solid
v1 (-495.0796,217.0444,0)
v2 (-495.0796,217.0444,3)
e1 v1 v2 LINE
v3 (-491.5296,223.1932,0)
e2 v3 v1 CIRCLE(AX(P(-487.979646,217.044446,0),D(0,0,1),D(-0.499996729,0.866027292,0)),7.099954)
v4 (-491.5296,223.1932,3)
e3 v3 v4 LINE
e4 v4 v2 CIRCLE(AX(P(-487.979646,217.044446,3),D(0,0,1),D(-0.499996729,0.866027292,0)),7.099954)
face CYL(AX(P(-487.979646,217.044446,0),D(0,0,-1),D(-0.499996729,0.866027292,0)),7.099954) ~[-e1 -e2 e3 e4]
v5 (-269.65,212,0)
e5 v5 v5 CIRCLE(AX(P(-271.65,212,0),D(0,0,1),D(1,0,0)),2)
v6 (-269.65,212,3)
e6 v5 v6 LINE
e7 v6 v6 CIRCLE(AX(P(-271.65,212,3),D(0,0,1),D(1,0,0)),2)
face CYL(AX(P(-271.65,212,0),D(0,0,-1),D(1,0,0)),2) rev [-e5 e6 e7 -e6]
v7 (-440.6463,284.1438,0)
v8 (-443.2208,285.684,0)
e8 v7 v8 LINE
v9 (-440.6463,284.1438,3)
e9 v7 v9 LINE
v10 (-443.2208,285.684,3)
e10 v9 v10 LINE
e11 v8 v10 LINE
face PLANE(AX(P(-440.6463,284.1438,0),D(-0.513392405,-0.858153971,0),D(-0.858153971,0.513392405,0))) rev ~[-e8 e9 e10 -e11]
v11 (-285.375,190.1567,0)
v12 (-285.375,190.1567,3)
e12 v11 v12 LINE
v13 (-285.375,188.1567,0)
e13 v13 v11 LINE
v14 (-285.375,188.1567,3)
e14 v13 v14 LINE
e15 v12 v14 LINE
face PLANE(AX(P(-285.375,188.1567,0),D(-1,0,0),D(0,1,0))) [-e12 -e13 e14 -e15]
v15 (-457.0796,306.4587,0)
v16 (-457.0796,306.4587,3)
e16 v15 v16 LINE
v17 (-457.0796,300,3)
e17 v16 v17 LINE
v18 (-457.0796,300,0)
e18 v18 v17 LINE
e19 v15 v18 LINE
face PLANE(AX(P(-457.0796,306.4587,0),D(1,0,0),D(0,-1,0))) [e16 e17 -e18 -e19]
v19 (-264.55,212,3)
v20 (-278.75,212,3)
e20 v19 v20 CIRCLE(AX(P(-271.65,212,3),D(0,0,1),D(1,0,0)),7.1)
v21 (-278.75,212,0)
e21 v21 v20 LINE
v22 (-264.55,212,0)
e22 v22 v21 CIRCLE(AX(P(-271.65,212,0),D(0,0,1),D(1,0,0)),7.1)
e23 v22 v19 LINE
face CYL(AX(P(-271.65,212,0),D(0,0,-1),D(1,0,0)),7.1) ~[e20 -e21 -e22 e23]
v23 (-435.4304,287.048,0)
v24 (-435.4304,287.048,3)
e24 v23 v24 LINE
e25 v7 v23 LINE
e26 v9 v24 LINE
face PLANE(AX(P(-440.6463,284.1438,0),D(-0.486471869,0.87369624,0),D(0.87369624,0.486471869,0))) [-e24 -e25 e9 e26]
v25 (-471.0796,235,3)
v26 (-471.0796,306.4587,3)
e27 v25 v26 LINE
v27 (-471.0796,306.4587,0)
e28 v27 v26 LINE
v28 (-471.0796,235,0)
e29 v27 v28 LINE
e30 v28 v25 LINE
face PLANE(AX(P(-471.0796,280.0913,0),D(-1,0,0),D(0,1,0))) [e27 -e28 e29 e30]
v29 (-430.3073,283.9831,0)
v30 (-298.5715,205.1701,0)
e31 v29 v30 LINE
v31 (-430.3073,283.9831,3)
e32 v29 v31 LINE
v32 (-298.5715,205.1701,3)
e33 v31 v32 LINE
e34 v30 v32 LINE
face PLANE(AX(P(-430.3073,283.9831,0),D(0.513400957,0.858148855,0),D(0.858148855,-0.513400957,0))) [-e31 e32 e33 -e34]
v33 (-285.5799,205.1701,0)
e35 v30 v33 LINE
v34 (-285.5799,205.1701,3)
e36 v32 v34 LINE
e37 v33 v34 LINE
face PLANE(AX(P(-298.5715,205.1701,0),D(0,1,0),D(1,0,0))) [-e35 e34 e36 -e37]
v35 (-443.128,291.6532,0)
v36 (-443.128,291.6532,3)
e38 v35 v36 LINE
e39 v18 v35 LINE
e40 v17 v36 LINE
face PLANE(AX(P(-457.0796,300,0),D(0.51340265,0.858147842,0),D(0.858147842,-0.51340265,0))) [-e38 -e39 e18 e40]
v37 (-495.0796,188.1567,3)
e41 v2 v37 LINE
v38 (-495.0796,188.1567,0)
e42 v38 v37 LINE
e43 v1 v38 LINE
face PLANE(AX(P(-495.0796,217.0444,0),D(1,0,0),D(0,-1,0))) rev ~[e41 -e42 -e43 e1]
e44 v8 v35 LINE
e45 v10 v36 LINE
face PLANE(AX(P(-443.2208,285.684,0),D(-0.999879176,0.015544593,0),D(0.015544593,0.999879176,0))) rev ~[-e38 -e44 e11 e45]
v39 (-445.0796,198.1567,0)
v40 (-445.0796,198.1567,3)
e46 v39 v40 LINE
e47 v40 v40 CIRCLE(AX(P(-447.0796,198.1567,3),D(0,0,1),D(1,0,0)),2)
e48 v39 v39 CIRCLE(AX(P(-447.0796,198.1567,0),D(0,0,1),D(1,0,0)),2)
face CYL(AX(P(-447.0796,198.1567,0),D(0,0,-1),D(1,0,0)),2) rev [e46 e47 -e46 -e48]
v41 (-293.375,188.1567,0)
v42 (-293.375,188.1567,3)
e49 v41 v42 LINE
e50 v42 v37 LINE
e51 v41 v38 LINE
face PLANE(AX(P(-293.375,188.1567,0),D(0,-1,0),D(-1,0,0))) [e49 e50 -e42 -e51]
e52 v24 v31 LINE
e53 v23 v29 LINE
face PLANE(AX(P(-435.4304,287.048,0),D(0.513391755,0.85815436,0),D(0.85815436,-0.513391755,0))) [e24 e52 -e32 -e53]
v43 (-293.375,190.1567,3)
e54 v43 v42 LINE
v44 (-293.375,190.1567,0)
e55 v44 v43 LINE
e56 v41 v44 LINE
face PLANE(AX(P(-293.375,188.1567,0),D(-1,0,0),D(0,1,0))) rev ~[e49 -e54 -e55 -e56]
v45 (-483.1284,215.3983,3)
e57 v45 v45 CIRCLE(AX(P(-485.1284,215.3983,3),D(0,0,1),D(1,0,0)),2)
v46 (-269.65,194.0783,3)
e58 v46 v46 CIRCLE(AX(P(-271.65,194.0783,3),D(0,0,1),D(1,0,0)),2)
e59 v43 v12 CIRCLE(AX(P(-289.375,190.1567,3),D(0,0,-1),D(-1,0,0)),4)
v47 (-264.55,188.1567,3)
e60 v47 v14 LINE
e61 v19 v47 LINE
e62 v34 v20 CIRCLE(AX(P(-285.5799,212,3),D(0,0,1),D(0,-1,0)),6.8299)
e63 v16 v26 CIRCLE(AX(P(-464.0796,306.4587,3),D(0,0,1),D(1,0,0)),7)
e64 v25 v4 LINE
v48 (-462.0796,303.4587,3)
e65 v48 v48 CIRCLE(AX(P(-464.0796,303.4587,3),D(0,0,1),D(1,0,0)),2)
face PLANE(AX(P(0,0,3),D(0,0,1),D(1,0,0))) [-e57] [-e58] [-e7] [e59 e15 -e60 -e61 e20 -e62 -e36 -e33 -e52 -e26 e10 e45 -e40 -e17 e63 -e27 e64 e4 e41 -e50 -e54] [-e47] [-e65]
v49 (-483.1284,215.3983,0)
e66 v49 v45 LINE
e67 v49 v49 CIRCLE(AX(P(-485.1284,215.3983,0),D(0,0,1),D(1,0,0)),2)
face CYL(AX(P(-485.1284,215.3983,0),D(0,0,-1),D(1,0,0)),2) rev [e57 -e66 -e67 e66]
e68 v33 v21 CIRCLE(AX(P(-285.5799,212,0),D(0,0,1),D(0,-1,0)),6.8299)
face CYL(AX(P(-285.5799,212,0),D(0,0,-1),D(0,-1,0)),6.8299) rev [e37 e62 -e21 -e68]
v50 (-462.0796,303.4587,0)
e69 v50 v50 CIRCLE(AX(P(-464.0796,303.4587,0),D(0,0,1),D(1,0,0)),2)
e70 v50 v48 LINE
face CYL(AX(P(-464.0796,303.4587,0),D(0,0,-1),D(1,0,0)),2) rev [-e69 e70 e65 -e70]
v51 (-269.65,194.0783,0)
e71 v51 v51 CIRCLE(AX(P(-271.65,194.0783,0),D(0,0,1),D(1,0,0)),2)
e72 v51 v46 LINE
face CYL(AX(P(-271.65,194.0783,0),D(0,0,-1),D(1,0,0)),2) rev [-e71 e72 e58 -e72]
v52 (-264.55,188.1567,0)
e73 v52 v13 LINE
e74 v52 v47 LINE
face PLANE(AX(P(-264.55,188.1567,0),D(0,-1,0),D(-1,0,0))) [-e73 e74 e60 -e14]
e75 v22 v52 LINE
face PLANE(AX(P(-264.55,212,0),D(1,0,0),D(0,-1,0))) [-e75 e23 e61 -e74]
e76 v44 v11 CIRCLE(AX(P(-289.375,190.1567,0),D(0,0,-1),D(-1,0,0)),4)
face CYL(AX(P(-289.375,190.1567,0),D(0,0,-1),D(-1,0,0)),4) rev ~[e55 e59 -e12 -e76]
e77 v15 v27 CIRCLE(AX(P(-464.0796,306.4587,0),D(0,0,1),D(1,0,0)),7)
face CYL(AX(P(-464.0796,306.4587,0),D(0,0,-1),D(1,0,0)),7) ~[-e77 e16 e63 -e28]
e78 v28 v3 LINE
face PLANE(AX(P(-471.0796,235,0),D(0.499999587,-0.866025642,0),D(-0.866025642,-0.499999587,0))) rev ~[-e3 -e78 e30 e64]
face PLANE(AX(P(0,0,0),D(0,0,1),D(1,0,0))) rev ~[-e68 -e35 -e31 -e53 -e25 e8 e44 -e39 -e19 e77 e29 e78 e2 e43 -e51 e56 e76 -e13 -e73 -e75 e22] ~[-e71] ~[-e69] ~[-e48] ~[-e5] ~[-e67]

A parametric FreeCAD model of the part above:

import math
import FreeCAD as App
import Part
import Sketcher
from FreeCAD import Vector
Q = App.Units.Quantity

doc = App.newDocument("Part")
params = doc.addObject("Spreadsheet::Sheet", "Params")
for row, (alias, value) in enumerate([
    ("sketch1_diameter", "4 mm"),
    ("sketch1_radius", "7 mm"),
    ("sketch1_radius2", "7.1 mm"),
    ("sketch1_length", "3 mm"),
    ("sketch1_radius3", "6.83 mm"),
    ("pad1_length", "3 mm"),
    ("sketch2_radius", "4 mm"),
    ("sketch2_height", "2 mm"),
], start=1):
    params.set(f"A{row}", alias)
    params.set(f"B{row}", "=" + value)
    params.setAlias(f"B{row}", alias)

body = doc.addObject("PartDesign::Body", "Body")

# Sketch on XY plane
sketch1 = body.newObject("Sketcher::SketchObject", "Sketch")
sketch1.AttachmentSupport = (doc.getObject("XY_Plane"), [""])
sketch1.MapMode = "FlatFace"
sketch1.addGeometry([
    Part.LineSegment(Vector(-471.1, 306.5, 0), Vector(-471.1, 235, 0)),  # 0
    Part.LineSegment(Vector(-471.1, 235, 0), Vector(-491.5, 223.2, 0)),  # 1
    Part.ArcOfCircle(Part.Circle(Vector(-488, 217, 0), Vector(0, 0, 1), 7.1), math.radians(120), math.radians(180)),  # 2
    Part.LineSegment(Vector(-495.1, 217, 0), Vector(-495.1, 188.2, 0)),  # 3
    Part.LineSegment(Vector(-495.1, 188.2, 0), Vector(-264.6, 188.2, 0)),  # 4
    Part.LineSegment(Vector(-264.6, 188.2, 0), Vector(-264.6, 212, 0)),  # 5
    Part.ArcOfCircle(Part.Circle(Vector(-271.6, 212, 0), Vector(0, 0, 1), 7.1), math.radians(0), math.radians(180)),  # 6
    Part.ArcOfCircle(Part.Circle(Vector(-285.6, 212, 0), Vector(0, 0, 1), 6.8), math.radians(-90), math.radians(0)),  # 7
    Part.LineSegment(Vector(-285.6, 205.2, 0), Vector(-298.6, 205.2, 0)),  # 8
    Part.LineSegment(Vector(-298.6, 205.2, 0), Vector(-430.3, 284, 0)),  # 9
    Part.LineSegment(Vector(-430.3, 284, 0), Vector(-435.4, 287, 0)),  # 10
    Part.LineSegment(Vector(-435.4, 287, 0), Vector(-440.6, 284.1, 0)),  # 11
    Part.LineSegment(Vector(-440.6, 284.1, 0), Vector(-443.2, 285.7, 0)),  # 12
    Part.LineSegment(Vector(-443.2, 285.7, 0), Vector(-443.1, 291.7, 0)),  # 13
    Part.LineSegment(Vector(-443.1, 291.7, 0), Vector(-457.1, 300, 0)),  # 14
    Part.LineSegment(Vector(-457.1, 300, 0), Vector(-457.1, 306.5, 0)),  # 15
    Part.ArcOfCircle(Part.Circle(Vector(-464.1, 306.5, 0), Vector(0, 0, 1), 7), math.radians(0), math.radians(180)),  # 16
    Part.Circle(Vector(-447.1, 198.2, 0), Vector(0, 0, 1), 2),  # 17
    Part.Circle(Vector(-485.1, 215.4, 0), Vector(0, 0, 1), 2),  # 18
    Part.Circle(Vector(-271.6, 194.1, 0), Vector(0, 0, 1), 2),  # 19
    Part.Circle(Vector(-271.6, 212, 0), Vector(0, 0, 1), 2),  # 20
    Part.Circle(Vector(-464.1, 303.5, 0), Vector(0, 0, 1), 2),  # 21
], False)
sketch1.addConstraint([
    Sketcher.Constraint("Coincident", 0, 2, 1, 1),
    Sketcher.Constraint("Tangent", 1, 2, 2, 1),
    Sketcher.Constraint("Tangent", 2, 2, 3, 1),
    Sketcher.Constraint("Coincident", 3, 2, 4, 1),
    Sketcher.Constraint("Coincident", 4, 2, 5, 1),
    Sketcher.Constraint("Tangent", 5, 2, 6, 1),
    Sketcher.Constraint("Tangent", 6, 2, 7, 2),
    Sketcher.Constraint("Tangent", 7, 1, 8, 1),
    Sketcher.Constraint("Coincident", 8, 2, 9, 1),
    Sketcher.Constraint("Coincident", 9, 2, 10, 1),
    Sketcher.Constraint("Coincident", 10, 2, 11, 1),
    Sketcher.Constraint("Coincident", 11, 2, 12, 1),
    Sketcher.Constraint("Coincident", 12, 2, 13, 1),
    Sketcher.Constraint("Coincident", 13, 2, 14, 1),
    Sketcher.Constraint("Coincident", 14, 2, 15, 1),
    Sketcher.Constraint("Tangent", 15, 2, 16, 1),
    Sketcher.Constraint("Tangent", 16, 2, 0, 1),
    Sketcher.Constraint("Vertical", 0),
    Sketcher.Constraint("Vertical", 3),
    Sketcher.Constraint("Horizontal", 4),
    Sketcher.Constraint("Vertical", 5),
    Sketcher.Constraint("Horizontal", 8),
    Sketcher.Constraint("Vertical", 15),
    Sketcher.Constraint("Coincident", 20, 3, 6, 3),
    Sketcher.Constraint("Equal", 2, 6),
    Sketcher.Constraint("Equal", 17, 18),
    Sketcher.Constraint("Equal", 18, 19),
    Sketcher.Constraint("Equal", 19, 20),
    Sketcher.Constraint("Equal", 20, 21),
    Sketcher.Constraint("Parallel", 9, 10),
    Sketcher.Constraint("Parallel", 10, 12),
    Sketcher.Constraint("Parallel", 12, 14),
    Sketcher.Constraint("Horizontal", 6, 3, 7, 3),
    Sketcher.Constraint("Vertical", 6, 3, 19, 3),
    Sketcher.Constraint("Vertical", 16, 3, 21, 3),
    Sketcher.Constraint("Equal", 10, 11),
    Sketcher.Constraint("Equal", 11, 13),
    Sketcher.Constraint("Diameter", 17, Q("4 mm")),
    Sketcher.Constraint("Radius", 16, Q("7 mm")),
    Sketcher.Constraint("Radius", 2, Q("7.1 mm")),
    Sketcher.Constraint("Distance", 12, Q("3 mm")),
    Sketcher.Constraint("DistanceY", -1, 1, 14, 2, Q("300 mm")),
    Sketcher.Constraint("DistanceY", 21, 3, 16, 3, Q("3 mm")),
    Sketcher.Constraint("DistanceX", 0, 2, 17, 3, Q("24 mm")),
    Sketcher.Constraint("DistanceX", 2, 2, 0, 2, Q("24 mm")),
    Sketcher.Constraint("DistanceY", 3, 2, 17, 3, Q("10 mm")),
    Sketcher.Constraint("Angle", 1, Q("-150 deg")),
    Sketcher.Constraint("Radius", 7, Q("6.83 mm")),
    Sketcher.Constraint("DistanceY", -1, 1, 6, 3, Q("212 mm")),
    Sketcher.Constraint("DistanceY", -1, 1, 0, 2, Q("235 mm")),
    Sketcher.Constraint("Angle", 9, Q("149.1094 deg")),
    Sketcher.Constraint("Angle", 11, Q("-150.891 deg")),
    Sketcher.Constraint("Angle", 13, Q("89.1093 deg")),
    Sketcher.Constraint("Distance", 10, Q("5.97 mm")),
    Sketcher.Constraint("DistanceX", 6, 3, -1, 1, Q("271.65 mm")),
    Sketcher.Constraint("DistanceY", 19, 3, 18, 3, Q("21.32 mm")),
    Sketcher.Constraint("DistanceY", 1, 2, 9, 2, Q("60.79 mm")),
    Sketcher.Constraint("DistanceX", 4, 1, 4, 2, Q("230.5296 mm")),
    Sketcher.Constraint("DistanceY", 0, 2, 0, 1, Q("71.4587 mm")),
    Sketcher.Constraint("DistanceY", 3, 2, 3, 1, Q("28.8877 mm")),
    Sketcher.Constraint("DistanceY", 18, 3, 2, 3, Q("1.646 mm")),
    Sketcher.Constraint("DistanceX", 18, 3, -1, 1, Q("485.1284 mm")),
])
sketch1.setExpression("Constraints[37]", "Params.sketch1_diameter")
sketch1.setExpression("Constraints[38]", "Params.sketch1_radius")
sketch1.setExpression("Constraints[39]", "Params.sketch1_radius2")
sketch1.setExpression("Constraints[40]", "Params.sketch1_length")
sketch1.setExpression("Constraints[47]", "Params.sketch1_radius3")
pad1 = body.newObject("PartDesign::Pad", "Pad")
pad1.Profile = sketch1
pad1.setExpression("Length", "Params.pad1_length")

# Sketch on XY plane
sketch2 = body.newObject("Sketcher::SketchObject", "Sketch001")
sketch2.AttachmentSupport = (doc.getObject("XY_Plane"), [""])
sketch2.MapMode = "FlatFace"
sketch2.addGeometry([
    Part.LineSegment(Vector(-285.4, 190.2, 0), Vector(-285.4, 188.2, 0)),
    Part.LineSegment(Vector(-285.4, 188.2, 0), Vector(-293.4, 188.2, 0)),
    Part.LineSegment(Vector(-293.4, 188.2, 0), Vector(-293.4, 190.2, 0)),
    Part.ArcOfCircle(Part.Circle(Vector(-289.4, 190.2, 0), Vector(0, 0, 1), 4), math.radians(0), math.radians(180)),
], False)
sketch2.addConstraint([
    Sketcher.Constraint("Coincident", 0, 2, 1, 1),
    Sketcher.Constraint("Coincident", 1, 2, 2, 1),
    Sketcher.Constraint("Tangent", 2, 2, 3, 2),
    Sketcher.Constraint("Tangent", 3, 1, 0, 1),
    Sketcher.Constraint("Vertical", 0),
    Sketcher.Constraint("Horizontal", 1),
    Sketcher.Constraint("Vertical", 2),
    Sketcher.Constraint("Radius", 3, Q("4 mm")),
    Sketcher.Constraint("DistanceY", 0, 2, 0, 1, Q("2 mm")),
    Sketcher.Constraint("DistanceX", 3, 3, -1, 1, Q("289.375 mm")),
    Sketcher.Constraint("DistanceY", -1, 1, 3, 3, Q("190.1567 mm")),
])
sketch2.setExpression("Constraints[7]", "Params.sketch2_radius")
sketch2.setExpression("Constraints[8]", "Params.sketch2_height")
pocket1 = body.newObject("PartDesign::Pocket", "Pocket")
pocket1.Profile = sketch2
pocket1.Type = "ThroughAll"
pocket1.Reversed = True

doc.recompute()
